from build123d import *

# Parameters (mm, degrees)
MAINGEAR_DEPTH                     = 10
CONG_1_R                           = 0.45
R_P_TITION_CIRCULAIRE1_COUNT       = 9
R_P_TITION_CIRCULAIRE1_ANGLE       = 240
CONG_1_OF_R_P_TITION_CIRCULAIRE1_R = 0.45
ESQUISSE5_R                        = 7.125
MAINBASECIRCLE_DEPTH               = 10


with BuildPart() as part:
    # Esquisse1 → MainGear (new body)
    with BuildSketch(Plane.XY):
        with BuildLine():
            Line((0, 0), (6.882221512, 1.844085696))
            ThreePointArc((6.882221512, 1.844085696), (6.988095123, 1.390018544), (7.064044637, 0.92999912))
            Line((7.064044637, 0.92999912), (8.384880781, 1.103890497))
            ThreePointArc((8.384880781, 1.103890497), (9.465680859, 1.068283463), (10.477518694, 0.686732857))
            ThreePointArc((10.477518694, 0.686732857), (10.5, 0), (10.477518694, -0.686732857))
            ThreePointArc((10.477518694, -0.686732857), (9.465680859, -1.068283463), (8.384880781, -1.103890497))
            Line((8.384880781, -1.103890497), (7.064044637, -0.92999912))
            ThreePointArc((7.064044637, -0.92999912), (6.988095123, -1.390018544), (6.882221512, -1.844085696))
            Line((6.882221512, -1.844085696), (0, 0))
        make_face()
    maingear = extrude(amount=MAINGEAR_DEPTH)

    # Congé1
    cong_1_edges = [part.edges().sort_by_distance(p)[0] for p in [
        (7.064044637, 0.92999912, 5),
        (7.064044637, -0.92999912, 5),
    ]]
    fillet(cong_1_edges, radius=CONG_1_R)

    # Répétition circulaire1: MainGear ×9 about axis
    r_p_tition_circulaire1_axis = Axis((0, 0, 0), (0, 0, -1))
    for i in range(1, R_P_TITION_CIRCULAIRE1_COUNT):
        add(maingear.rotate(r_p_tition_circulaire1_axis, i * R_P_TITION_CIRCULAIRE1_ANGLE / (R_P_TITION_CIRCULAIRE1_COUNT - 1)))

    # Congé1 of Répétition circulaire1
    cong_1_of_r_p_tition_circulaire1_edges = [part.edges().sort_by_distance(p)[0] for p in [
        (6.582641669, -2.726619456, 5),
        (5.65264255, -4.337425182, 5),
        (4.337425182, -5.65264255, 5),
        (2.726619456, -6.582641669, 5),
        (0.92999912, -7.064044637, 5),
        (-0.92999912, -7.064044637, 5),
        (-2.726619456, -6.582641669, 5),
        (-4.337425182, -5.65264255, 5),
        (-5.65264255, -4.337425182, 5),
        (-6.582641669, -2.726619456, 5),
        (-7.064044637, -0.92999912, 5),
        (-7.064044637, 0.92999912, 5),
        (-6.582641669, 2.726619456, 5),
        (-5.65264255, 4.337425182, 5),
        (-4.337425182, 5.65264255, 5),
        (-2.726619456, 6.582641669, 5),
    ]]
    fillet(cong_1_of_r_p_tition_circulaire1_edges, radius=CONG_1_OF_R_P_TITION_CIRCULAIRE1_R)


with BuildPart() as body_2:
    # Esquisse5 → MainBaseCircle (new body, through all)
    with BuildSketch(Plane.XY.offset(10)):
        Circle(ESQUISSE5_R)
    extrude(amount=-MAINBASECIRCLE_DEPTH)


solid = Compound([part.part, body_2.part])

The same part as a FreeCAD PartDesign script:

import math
import FreeCAD as App
import Part
import Sketcher

V = App.Vector
Q = App.Units.Quantity


def edges_at(feature, points):
    """Names of the edges that pass closest to the given points."""
    edges = feature.Shape.Edges
    near = lambda p: min(range(len(edges)), key=lambda i: edges[i].distToShape(Part.Vertex(*p))[0])
    return sorted({f"Edge{near(p) + 1}" for p in points})

doc = App.newDocument("Part")
body = doc.addObject("PartDesign::Body", "Body")

# Sketch on XY plane
sketch1 = body.newObject("Sketcher::SketchObject", "Sketch")
sketch1.AttachmentSupport = (doc.getObject("XY_Plane"), [""])
sketch1.MapMode = "FlatFace"
sketch1.addGeometry(Part.LineSegment(V(6.9, 1.8, 0), V(0, 0, 0)), False)
sketch1.addGeometry(Part.LineSegment(V(0, 0, 0), V(6.9, -1.8, 0)), False)
sketch1.addGeometry(Part.ArcOfCircle(Part.Circle(V(0, 0, 0), V(0, 0, 1), 7.1), math.radians(-15), math.radians(-7.5)), False)
sketch1.addGeometry(Part.LineSegment(V(7.1, -0.9, 0), V(8.4, -1.1, 0)), False)
sketch1.addGeometry(Part.ArcOfCircle(Part.Circle(V(8.8, 2.2, 0), V(0, 0, 1), 3.3), math.radians(-98), math.radians(-60)), False)
sketch1.addGeometry(Part.ArcOfCircle(Part.Circle(V(0, 0, 0), V(0, 0, 1), 10.5), math.radians(-3.75), math.radians(3.75)), False)
sketch1.addGeometry(Part.ArcOfCircle(Part.Circle(V(8.8, -2.2, 0), V(0, 0, 1), 3.3), math.radians(60), math.radians(98)), False)
sketch1.addGeometry(Part.LineSegment(V(8.4, 1.1, 0), V(7.1, 0.9, 0)), False)
sketch1.addGeometry(Part.ArcOfCircle(Part.Circle(V(0, 0, 0), V(0, 0, 1), 7.1), math.radians(7.5), math.radians(15)), False)
sketch1.addConstraint(Sketcher.Constraint("Coincident", 0, 2, 1, 1))
sketch1.addConstraint(Sketcher.Constraint("Coincident", 1, 2, 2, 1))
sketch1.addConstraint(Sketcher.Constraint("Coincident", 2, 2, 3, 1))
sketch1.addConstraint(Sketcher.Constraint("Tangent", 3, 2, 4, 1))
sketch1.addConstraint(Sketcher.Constraint("Coincident", 4, 2, 5, 1))
sketch1.addConstraint(Sketcher.Constraint("Coincident", 5, 2, 6, 1))
sketch1.addConstraint(Sketcher.Constraint("Tangent", 6, 2, 7, 1))
sketch1.addConstraint(Sketcher.Constraint("Coincident", 7, 2, 8, 1))
sketch1.addConstraint(Sketcher.Constraint("Coincident", 8, 2, 0, 1))
sketch1.addConstraint(Sketcher.Constraint("Coincident", 2, 3, -1, 1))
sketch1.addConstraint(Sketcher.Constraint("Coincident", 5, 3, -1, 1))
sketch1.addConstraint(Sketcher.Constraint("Coincident", 8, 3, -1, 1))
sketch1.addConstraint(Sketcher.Constraint("Coincident", 0, 2, -1, 1))
sketch1.addConstraint(Sketcher.Constraint("Equal", 4, 6))
sketch1.addConstraint(Sketcher.Constraint("Equal", 2, 8))
sketch1.addConstraint(Sketcher.Constraint("Symmetric", 4, 3, 6, 3, -1))
sketch1.addConstraint(Sketcher.Constraint("Vertical", 3, 2, 6, 2))
sketch1.addConstraint(Sketcher.Constraint("Vertical", 1, 2, 8, 2))
sketch1.addConstraint(Sketcher.Constraint("Radius", 5, Q("10.5 mm")))
sketch1.addConstraint(Sketcher.Constraint("Angle", 0, Q("-165 deg")))
sketch1.addConstraint(Sketcher.Constraint("Angle", 3, Q("-7.5 deg")))
sketch1.addConstraint(Sketcher.Constraint("Radius", 2, Q("7.125 mm")))
sketch1.addConstraint(Sketcher.Constraint("DistanceY", 2, 2, -1, 1, Q("0.929999 mm")))
sketch1.addConstraint(Sketcher.Constraint("Radius", 4, Q("3.315084 mm")))
sketch1.addConstraint(Sketcher.Constraint("DistanceY", 6, 3, 4, 2, Q("1.496099 mm")))
pad1 = body.newObject("PartDesign::Pad", "Pad")
pad1.Profile = sketch1
pad1.Length = 10
doc.recompute()

fillet = body.newObject("PartDesign::Fillet", "Fillet")
fillet.Base = (pad1, edges_at(pad1, [(7.064, 0.93, 5), (7.064, -0.93, 5)]))
fillet.Radius = 0.45
doc.recompute()

polarpattern = body.newObject("PartDesign::PolarPattern", "PolarPattern")
polarpattern.Originals = [pad1]
polarpattern.Axis = (doc.getObject("Z_Axis"), [""])
polarpattern.Angle = 240
polarpattern.Occurrences = 9
polarpattern.Reversed = True
body.Tip = polarpattern
doc.recompute()

fillet2 = body.newObject("PartDesign::Fillet", "Fillet001")
fillet2.Base = (polarpattern, edges_at(polarpattern, [
    (6.583, -2.727, 5),
    (5.653, -4.337, 5),
    (4.337, -5.653, 5),
    (2.727, -6.583, 5),
    (0.93, -7.064, 5),
    (-0.93, -7.064, 5),
    (-2.727, -6.583, 5),
    (-4.337, -5.653, 5),
    (-5.653, -4.337, 5),
    (-6.583, -2.727, 5),
    (-7.064, -0.93, 5),
    (-7.064, 0.93, 5),
    (-6.583, 2.727, 5),
    (-5.653, 4.337, 5),
    (-4.337, 5.653, 5),
    (-2.727, 6.583, 5),
]))
fillet2.Radius = 0.45
body2 = doc.addObject("PartDesign::Body", "Body001")

# Sketch on XY plane
sketch2 = body2.newObject("Sketcher::SketchObject", "Sketch001")
sketch2.AttachmentSupport = (doc.getObject("XY_Plane001"), [""])
sketch2.MapMode = "FlatFace"
sketch2.AttachmentOffset = App.Placement(V(0, 0, 10), App.Rotation())
sketch2.addGeometry(Part.Circle(V(0, 0, 0), V(0, 0, 1), 7), False)
sketch2.addConstraint(Sketcher.Constraint("Coincident", 0, 3, -1, 1))
sketch2.addConstraint(Sketcher.Constraint("Diameter", 0, Q("14.25 mm")))
pad2 = body2.newObject("PartDesign::Pad", "Pad001")
pad2.Profile = sketch2
pad2.Length = 10
pad2.Reversed = True

doc.recompute()
